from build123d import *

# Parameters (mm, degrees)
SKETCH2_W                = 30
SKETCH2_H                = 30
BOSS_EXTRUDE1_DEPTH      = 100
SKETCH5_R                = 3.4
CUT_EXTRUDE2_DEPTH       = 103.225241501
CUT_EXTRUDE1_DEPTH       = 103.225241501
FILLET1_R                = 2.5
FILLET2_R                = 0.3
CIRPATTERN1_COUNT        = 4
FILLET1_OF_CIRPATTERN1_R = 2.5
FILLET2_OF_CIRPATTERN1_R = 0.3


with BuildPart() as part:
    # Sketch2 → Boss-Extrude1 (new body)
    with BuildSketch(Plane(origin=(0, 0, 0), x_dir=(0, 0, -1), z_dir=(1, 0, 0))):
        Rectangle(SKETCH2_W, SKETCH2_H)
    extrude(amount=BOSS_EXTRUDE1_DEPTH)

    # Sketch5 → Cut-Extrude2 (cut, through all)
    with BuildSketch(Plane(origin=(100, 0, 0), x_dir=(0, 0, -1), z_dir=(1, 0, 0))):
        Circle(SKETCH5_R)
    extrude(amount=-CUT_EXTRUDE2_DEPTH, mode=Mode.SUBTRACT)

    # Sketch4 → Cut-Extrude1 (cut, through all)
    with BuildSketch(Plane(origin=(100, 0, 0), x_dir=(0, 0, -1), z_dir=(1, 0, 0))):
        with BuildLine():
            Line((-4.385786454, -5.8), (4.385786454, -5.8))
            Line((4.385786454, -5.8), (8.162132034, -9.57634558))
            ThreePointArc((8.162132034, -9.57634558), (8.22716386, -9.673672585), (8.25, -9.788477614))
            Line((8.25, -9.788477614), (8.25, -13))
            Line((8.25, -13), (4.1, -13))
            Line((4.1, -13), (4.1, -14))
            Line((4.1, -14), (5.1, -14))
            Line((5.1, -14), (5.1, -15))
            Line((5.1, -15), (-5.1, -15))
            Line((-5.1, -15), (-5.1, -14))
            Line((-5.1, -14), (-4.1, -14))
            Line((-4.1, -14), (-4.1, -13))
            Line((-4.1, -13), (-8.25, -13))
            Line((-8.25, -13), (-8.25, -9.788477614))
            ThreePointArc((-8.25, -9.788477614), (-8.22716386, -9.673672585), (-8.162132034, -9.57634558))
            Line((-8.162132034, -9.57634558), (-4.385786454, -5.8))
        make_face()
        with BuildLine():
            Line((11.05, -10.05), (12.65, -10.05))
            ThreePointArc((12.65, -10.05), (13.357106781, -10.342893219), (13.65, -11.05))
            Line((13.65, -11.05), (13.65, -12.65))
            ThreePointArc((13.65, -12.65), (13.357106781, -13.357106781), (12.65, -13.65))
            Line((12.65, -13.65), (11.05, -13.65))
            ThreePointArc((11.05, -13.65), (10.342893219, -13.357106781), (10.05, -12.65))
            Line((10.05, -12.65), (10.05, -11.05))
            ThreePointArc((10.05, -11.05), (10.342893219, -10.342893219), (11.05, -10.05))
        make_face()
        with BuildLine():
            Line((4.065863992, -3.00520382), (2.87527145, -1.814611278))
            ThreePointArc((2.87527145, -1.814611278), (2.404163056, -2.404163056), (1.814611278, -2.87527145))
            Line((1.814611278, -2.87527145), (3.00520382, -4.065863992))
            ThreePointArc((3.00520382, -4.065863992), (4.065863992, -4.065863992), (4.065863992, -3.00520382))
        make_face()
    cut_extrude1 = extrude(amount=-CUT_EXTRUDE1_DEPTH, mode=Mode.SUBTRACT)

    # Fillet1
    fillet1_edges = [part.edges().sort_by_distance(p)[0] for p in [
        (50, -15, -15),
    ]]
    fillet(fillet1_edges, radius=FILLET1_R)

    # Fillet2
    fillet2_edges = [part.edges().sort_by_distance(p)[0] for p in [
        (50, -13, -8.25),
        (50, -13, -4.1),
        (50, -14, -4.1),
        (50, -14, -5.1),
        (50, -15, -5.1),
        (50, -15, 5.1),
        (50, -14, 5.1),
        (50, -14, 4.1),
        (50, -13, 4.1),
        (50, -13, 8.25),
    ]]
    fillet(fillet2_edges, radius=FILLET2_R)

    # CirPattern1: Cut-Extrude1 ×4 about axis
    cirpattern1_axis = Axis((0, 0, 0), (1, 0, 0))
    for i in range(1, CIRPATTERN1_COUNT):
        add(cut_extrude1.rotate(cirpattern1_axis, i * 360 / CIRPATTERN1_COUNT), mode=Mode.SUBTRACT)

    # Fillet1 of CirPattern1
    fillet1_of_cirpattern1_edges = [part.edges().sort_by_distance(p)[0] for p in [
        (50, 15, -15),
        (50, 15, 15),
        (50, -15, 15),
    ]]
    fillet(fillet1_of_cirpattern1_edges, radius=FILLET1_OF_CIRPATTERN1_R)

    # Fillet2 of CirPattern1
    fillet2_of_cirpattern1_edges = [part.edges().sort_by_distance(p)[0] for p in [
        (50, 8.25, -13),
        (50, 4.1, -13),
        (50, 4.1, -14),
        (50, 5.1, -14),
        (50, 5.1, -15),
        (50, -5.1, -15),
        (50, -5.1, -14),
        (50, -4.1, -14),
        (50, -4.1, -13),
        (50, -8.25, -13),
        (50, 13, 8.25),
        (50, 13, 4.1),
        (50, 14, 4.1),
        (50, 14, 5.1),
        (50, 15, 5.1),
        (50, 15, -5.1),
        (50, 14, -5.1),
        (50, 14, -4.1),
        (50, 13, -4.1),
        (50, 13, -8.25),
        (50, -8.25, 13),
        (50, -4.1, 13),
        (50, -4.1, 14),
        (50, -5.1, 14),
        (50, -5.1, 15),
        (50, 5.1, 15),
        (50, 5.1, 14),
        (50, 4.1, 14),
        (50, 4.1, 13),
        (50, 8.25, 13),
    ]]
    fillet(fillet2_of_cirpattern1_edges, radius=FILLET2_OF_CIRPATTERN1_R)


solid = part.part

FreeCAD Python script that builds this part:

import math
import FreeCAD as App
import Part
import Sketcher
from FreeCAD import Vector
Q = App.Units.Quantity


def edges_at(feature, points):
    """Names of the edges that pass closest to the given points."""
    edges = feature.Shape.Edges
    near = lambda p: min(range(len(edges)), key=lambda i: edges[i].distToShape(Part.Vertex(*p))[0])
    return sorted({f"Edge{near(p) + 1}" for p in points})

doc = App.newDocument("Part")
params = doc.addObject("Spreadsheet::Sheet", "Params")
for row, (alias, value) in enumerate([
    ("sketch1_width", "30 mm"),
    ("pad1_length", "100 mm"),
    ("sketch2_diameter", "6.8 mm"),
    ("sketch3_radius", "1 mm"),
    ("sketch3_radius2", "0.3 mm"),
    ("sketch3_radius3", "3.4 mm"),
    ("sketch3_width", "1 mm"),
    ("sketch3_radius4", "0.75 mm"),
    ("fillet_radius", "2.5 mm"),
    ("fillet2_radius", "0.3 mm"),
    ("fillet3_radius", "2.5 mm"),
    ("fillet4_radius", "0.3 mm"),
], start=1):
    params.set(f"A{row}", alias)
    params.set(f"B{row}", "=" + value)
    params.setAlias(f"B{row}", alias)

body = doc.addObject("PartDesign::Body", "Body")

sketch1 = body.newObject("Sketcher::SketchObject", "Sketch")
sketch1.AttachmentSupport = (doc.getObject("YZ_Plane"), [""])
sketch1.MapMode = "FlatFace"
sketch1.addGeometry(Part.LineSegment(Vector(15, 15, 0), Vector(-15, 15, 0)), False)
sketch1.addGeometry(Part.LineSegment(Vector(-15, 15, 0), Vector(-15, -15, 0)), False)
sketch1.addGeometry(Part.LineSegment(Vector(-15, -15, 0), Vector(15, -15, 0)), False)
sketch1.addGeometry(Part.LineSegment(Vector(15, -15, 0), Vector(15, 15, 0)), False)
sketch1.addConstraint(Sketcher.Constraint("Coincident", 0, 2, 1, 1))
sketch1.addConstraint(Sketcher.Constraint("Coincident", 1, 2, 2, 1))
sketch1.addConstraint(Sketcher.Constraint("Coincident", 2, 2, 3, 1))
sketch1.addConstraint(Sketcher.Constraint("Coincident", 3, 2, 0, 1))
sketch1.addConstraint(Sketcher.Constraint("Horizontal", 0))
sketch1.addConstraint(Sketcher.Constraint("Vertical", 1))
sketch1.addConstraint(Sketcher.Constraint("Horizontal", 2))
sketch1.addConstraint(Sketcher.Constraint("Vertical", 3))
sketch1.addConstraint(Sketcher.Constraint("Symmetric", 0, 2, 2, 2, -1, 1))
sketch1.addConstraint(Sketcher.Constraint("Equal", 2, 1))
sketch1.addConstraint(Sketcher.Constraint("DistanceX", 0, 2, 0, 1, Q("30 mm")))
sketch1.setExpression("Constraints[10]", "Params.sketch1_width")
pad1 = body.newObject("PartDesign::Pad", "Pad")
pad1.Profile = sketch1
pad1.setExpression("Length", "Params.pad1_length")

sketch2 = body.newObject("Sketcher::SketchObject", "Sketch001")
sketch2.AttachmentSupport = (doc.getObject("YZ_Plane"), [""])
sketch2.MapMode = "FlatFace"
sketch2.AttachmentOffset = App.Placement(Vector(0, 0, 100), App.Rotation())
sketch2.addGeometry(Part.Circle(Vector(0, 0, 0), Vector(0, 0, 1), 3.4), False)
sketch2.addConstraint(Sketcher.Constraint("Coincident", 0, 3, -1, 1))
sketch2.addConstraint(Sketcher.Constraint("Diameter", 0, Q("6.8 mm")))
sketch2.setExpression("Constraints[1]", "Params.sketch2_diameter")
pocket1 = body.newObject("PartDesign::Pocket", "Pocket")
pocket1.Profile = sketch2
pocket1.Type = "ThroughAll"

sketch3 = body.newObject("Sketcher::SketchObject", "Sketch002")
sketch3.AttachmentSupport = (doc.getObject("YZ_Plane"), [""])
sketch3.MapMode = "FlatFace"
sketch3.AttachmentOffset = App.Placement(Vector(0, 0, 100), App.Rotation())
sketch3.addGeometry(Part.LineSegment(Vector(-5.8, -4.39, 0), Vector(-5.8, 4.39, 0)), False)
sketch3.addGeometry(Part.LineSegment(Vector(-5.8, 4.39, 0), Vector(-9.58, 8.16, 0)), False)
sketch3.addGeometry(Part.ArcOfCircle(Part.Circle(Vector(-9.79, 7.95, 0), Vector(0, 0, 1), 0.3), math.radians(45), math.radians(90)), False)
sketch3.addGeometry(Part.LineSegment(Vector(-9.79, 8.25, 0), Vector(-13, 8.25, 0)), False)
sketch3.addGeometry(Part.LineSegment(Vector(-13, 8.25, 0), Vector(-13, 4.1, 0)), False)
sketch3.addGeometry(Part.LineSegment(Vector(-13, 4.1, 0), Vector(-14, 4.1, 0)), False)
sketch3.addGeometry(Part.LineSegment(Vector(-14, 4.1, 0), Vector(-14, 5.1, 0)), False)
sketch3.addGeometry(Part.LineSegment(Vector(-14, 5.1, 0), Vector(-15, 5.1, 0)), False)
sketch3.addGeometry(Part.LineSegment(Vector(-15, 5.1, 0), Vector(-15, -5.1, 0)), False)
sketch3.addGeometry(Part.LineSegment(Vector(-15, -5.1, 0), Vector(-14, -5.1, 0)), False)
sketch3.addGeometry(Part.LineSegment(Vector(-14, -5.1, 0), Vector(-14, -4.1, 0)), False)
sketch3.addGeometry(Part.LineSegment(Vector(-14, -4.1, 0), Vector(-13, -4.1, 0)), False)
sketch3.addGeometry(Part.LineSegment(Vector(-13, -4.1, 0), Vector(-13, -8.25, 0)), False)
sketch3.addGeometry(Part.LineSegment(Vector(-13, -8.25, 0), Vector(-9.79, -8.25, 0)), False)
sketch3.addGeometry(Part.ArcOfCircle(Part.Circle(Vector(-9.79, -7.95, 0), Vector(0, 0, 1), 0.3), math.radians(-90), math.radians(-45)), False)
sketch3.addGeometry(Part.LineSegment(Vector(-9.58, -8.16, 0), Vector(-5.8, -4.39, 0)), False)
sketch3.addGeometry(Part.LineSegment(Vector(-10.05, -12.65, 0), Vector(-10.05, -11.05, 0)), False)
sketch3.addGeometry(Part.ArcOfCircle(Part.Circle(Vector(-11.05, -11.05, 0), Vector(0, 0, 1), 1), math.radians(0), math.radians(90)), False)
sketch3.addGeometry(Part.LineSegment(Vector(-11.05, -10.05, 0), Vector(-12.65, -10.05, 0)), False)
sketch3.addGeometry(Part.ArcOfCircle(Part.Circle(Vector(-12.65, -11.05, 0), Vector(0, 0, 1), 1), math.radians(90), math.radians(180)), False)
sketch3.addGeometry(Part.LineSegment(Vector(-13.65, -11.05, 0), Vector(-13.65, -12.65, 0)), False)
sketch3.addGeometry(Part.ArcOfCircle(Part.Circle(Vector(-12.65, -12.65, 0), Vector(0, 0, 1), 1), math.radians(-180), math.radians(-90)), False)
sketch3.addGeometry(Part.LineSegment(Vector(-12.65, -13.65, 0), Vector(-11.05, -13.65, 0)), False)
sketch3.addGeometry(Part.ArcOfCircle(Part.Circle(Vector(-11.05, -12.65, 0), Vector(0, 0, 1), 1), math.radians(-90), math.radians(0)), False)
sketch3.addGeometry(Part.LineSegment(Vector(-3.01, -4.07, 0), Vector(-1.81, -2.88, 0)), False)
sketch3.addGeometry(Part.ArcOfCircle(Part.Circle(Vector(0, 0, 0), Vector(0, 0, 1), 3.4), math.radians(-148), math.radians(-122)), False)
sketch3.addGeometry(Part.LineSegment(Vector(-2.88, -1.81, 0), Vector(-4.07, -3.01, 0)), False)
sketch3.addGeometry(Part.ArcOfCircle(Part.Circle(Vector(-3.54, -3.54, 0), Vector(0, 0, 1), 0.75), math.radians(135), math.radians(315)), False)
sketch3.addConstraint(Sketcher.Constraint("Coincident", 0, 2, 1, 1))
sketch3.addConstraint(Sketcher.Constraint("Tangent", 1, 2, 2, 1))
sketch3.addConstraint(Sketcher.Constraint("Tangent", 2, 2, 3, 1))
sketch3.addConstraint(Sketcher.Constraint("Coincident", 3, 2, 4, 1))
sketch3.addConstraint(Sketcher.Constraint("Coincident", 4, 2, 5, 1))
sketch3.addConstraint(Sketcher.Constraint("Coincident", 5, 2, 6, 1))
sketch3.addConstraint(Sketcher.Constraint("Coincident", 6, 2, 7, 1))
sketch3.addConstraint(Sketcher.Constraint("Coincident", 7, 2, 8, 1))
sketch3.addConstraint(Sketcher.Constraint("Coincident", 8, 2, 9, 1))
sketch3.addConstraint(Sketcher.Constraint("Coincident", 9, 2, 10, 1))
sketch3.addConstraint(Sketcher.Constraint("Coincident", 10, 2, 11, 1))
sketch3.addConstraint(Sketcher.Constraint("Coincident", 11, 2, 12, 1))
sketch3.addConstraint(Sketcher.Constraint("Coincident", 12, 2, 13, 1))
sketch3.addConstraint(Sketcher.Constraint("Tangent", 13, 2, 14, 1))
sketch3.addConstraint(Sketcher.Constraint("Tangent", 14, 2, 15, 1))
sketch3.addConstraint(Sketcher.Constraint("Coincident", 15, 2, 0, 1))
sketch3.addConstraint(Sketcher.Constraint("Tangent", 16, 2, 17, 1))
sketch3.addConstraint(Sketcher.Constraint("Tangent", 17, 2, 18, 1))
sketch3.addConstraint(Sketcher.Constraint("Tangent", 18, 2, 19, 1))
sketch3.addConstraint(Sketcher.Constraint("Tangent", 19, 2, 20, 1))
sketch3.addConstraint(Sketcher.Constraint("Tangent", 20, 2, 21, 1))
sketch3.addConstraint(Sketcher.Constraint("Tangent", 21, 2, 22, 1))
sketch3.addConstraint(Sketcher.Constraint("Tangent", 22, 2, 23, 1))
sketch3.addConstraint(Sketcher.Constraint("Tangent", 23, 2, 16, 1))
sketch3.addConstraint(Sketcher.Constraint("Coincident", 24, 2, 25, 2))
sketch3.addConstraint(Sketcher.Constraint("Coincident", 25, 1, 26, 1))
sketch3.addConstraint(Sketcher.Constraint("Tangent", 26, 2, 27, 1))
sketch3.addConstraint(Sketcher.Constraint("Tangent", 27, 2, 24, 1))
sketch3.addConstraint(Sketcher.Constraint("Vertical", 0))
sketch3.addConstraint(Sketcher.Constraint("Horizontal", 3))
sketch3.addConstraint(Sketcher.Constraint("Vertical", 4))
sketch3.addConstraint(Sketcher.Constraint("Horizontal", 5))
sketch3.addConstraint(Sketcher.Constraint("Vertical", 6))
sketch3.addConstraint(Sketcher.Constraint("Horizontal", 7))
sketch3.addConstraint(Sketcher.Constraint("Vertical", 8))
sketch3.addConstraint(Sketcher.Constraint("Horizontal", 9))
sketch3.addConstraint(Sketcher.Constraint("Vertical", 10))
sketch3.addConstraint(Sketcher.Constraint("Horizontal", 11))
sketch3.addConstraint(Sketcher.Constraint("Vertical", 12))
sketch3.addConstraint(Sketcher.Constraint("Horizontal", 13))
sketch3.addConstraint(Sketcher.Constraint("Vertical", 16))
sketch3.addConstraint(Sketcher.Constraint("Horizontal", 18))
sketch3.addConstraint(Sketcher.Constraint("Vertical", 20))
sketch3.addConstraint(Sketcher.Constraint("Horizontal", 22))
sketch3.addConstraint(Sketcher.Constraint("Coincident", 25, 3, -1, 1))
sketch3.addConstraint(Sketcher.Constraint("Equal", 2, 14))
sketch3.addConstraint(Sketcher.Constraint("Equal", 17, 19))
sketch3.addConstraint(Sketcher.Constraint("Equal", 19, 21))
sketch3.addConstraint(Sketcher.Constraint("Equal", 21, 23))
sketch3.addConstraint(Sketcher.Constraint("Symmetric", 2, 3, 14, 3, -1))
sketch3.addConstraint(Sketcher.Constraint("Symmetric", 6, 2, 9, 2, -1))
sketch3.addConstraint(Sketcher.Constraint("Symmetric", 4, 2, 11, 2, -1))
sketch3.addConstraint(Sketcher.Constraint("Perpendicular", 1, 15))
sketch3.addConstraint(Sketcher.Constraint("Parallel", 15, 24))
sketch3.addConstraint(Sketcher.Constraint("Parallel", 24, 26))
sketch3.addConstraint(Sketcher.Constraint("Vertical", 1, 2, 14, 2))
sketch3.addConstraint(Sketcher.Constraint("Equal", 5, 7))
sketch3.addConstraint(Sketcher.Constraint("Equal", 11, 6))
sketch3.addConstraint(Sketcher.Constraint("Equal", 22, 16))
sketch3.addConstraint(Sketcher.Constraint("Equal", 24, 26))
sketch3.addConstraint(Sketcher.Constraint("Radius", 17, Q("1 mm")))
sketch3.addConstraint(Sketcher.Constraint("Radius", 2, Q("0.3 mm")))
sketch3.addConstraint(Sketcher.Constraint("Radius", 25, Q("3.4 mm")))
sketch3.addConstraint(Sketcher.Constraint("DistanceX", 5, 2, 5, 1, Q("1 mm")))
sketch3.addConstraint(Sketcher.Constraint("Radius", 27, Q("0.75 mm")))
sketch3.addConstraint(Sketcher.Constraint("DistanceX", 18, 2, 18, 1, Q("1.6 mm")))
sketch3.addConstraint(Sketcher.Constraint("DistanceY", 8, 2, 8, 1, Q("10.2 mm")))
sketch3.addConstraint(Sketcher.Constraint("DistanceX", 3, 2, -1, 1, Q("13 mm")))
sketch3.addConstraint(Sketcher.Constraint("DistanceY", 17, 3, 2, 3, Q("19 mm")))
sketch3.addConstraint(Sketcher.Constraint("DistanceY", 4, 2, 4, 1, Q("4.15 mm")))
sketch3.addConstraint(Sketcher.Constraint("DistanceX", 0, 2, -1, 1, Q("5.8 mm")))
sketch3.addConstraint(Sketcher.Constraint("DistanceX", 17, 3, -1, 1, Q("11.05 mm")))
sketch3.addConstraint(Sketcher.Constraint("Distance", 1, Q("5.340559 mm")))
sketch3.addConstraint(Sketcher.Constraint("DistanceY", 27, 3, 0, 2, Q("7.92132 mm")))
sketch3.setExpression("Constraints[60]", "Params.sketch3_radius")
sketch3.setExpression("Constraints[61]", "Params.sketch3_radius2")
sketch3.setExpression("Constraints[62]", "Params.sketch3_radius3")
sketch3.setExpression("Constraints[63]", "Params.sketch3_width")
sketch3.setExpression("Constraints[64]", "Params.sketch3_radius4")
pocket2 = body.newObject("PartDesign::Pocket", "Pocket001")
pocket2.Profile = sketch3
pocket2.Type = "ThroughAll"
doc.recompute()

fillet = body.newObject("PartDesign::Fillet", "Fillet")
fillet.Base = (pocket2, edges_at(pocket2, [(50, -15, -15)]))
fillet.setExpression("Radius", "Params.fillet_radius")
doc.recompute()

fillet2 = body.newObject("PartDesign::Fillet", "Fillet001")
fillet2.Base = (fillet, edges_at(fillet, [
    (50, -13, -8.25),
    (50, -13, -4.1),
    (50, -14, -4.1),
    (50, -14, -5.1),
    (50, -15, -5.1),
    (50, -15, 5.1),
    (50, -14, 5.1),
    (50, -14, 4.1),
    (50, -13, 4.1),
    (50, -13, 8.25),
]))
fillet2.setExpression("Radius", "Params.fillet2_radius")
doc.recompute()

polarpattern = body.newObject("PartDesign::PolarPattern", "PolarPattern")
polarpattern.Originals = [pocket2]
polarpattern.Axis = (doc.getObject("X_Axis"), [""])
polarpattern.Angle = 360
polarpattern.Occurrences = 4
body.Tip = polarpattern
doc.recompute()

fillet3 = body.newObject("PartDesign::Fillet", "Fillet002")
fillet3.Base = (polarpattern, edges_at(polarpattern, [(50, 15, -15), (50, 15, 15), (50, -15, 15)]))
fillet3.setExpression("Radius", "Params.fillet3_radius")
doc.recompute()

fillet4 = body.newObject("PartDesign::Fillet", "Fillet003")
fillet4.Base = (fillet3, edges_at(fillet3, [
    (50, 8.25, -13),
    (50, 4.1, -13),
    (50, 4.1, -14),
    (50, 5.1, -14),
    (50, 5.1, -15),
    (50, -5.1, -15),
    (50, -5.1, -14),
    (50, -4.1, -14),
    (50, -4.1, -13),
    (50, -8.25, -13),
    (50, 13, 8.25),
    (50, 13, 4.1),
    (50, 14, 4.1),
    (50, 14, 5.1),
    (50, 15, 5.1),
    (50, 15, -5.1),
    (50, 14, -5.1),
    (50, 14, -4.1),
    (50, 13, -4.1),
    (50, 13, -8.25),
    (50, -8.25, 13),
    (50, -4.1, 13),
    (50, -4.1, 14),
    (50, -5.1, 14),
    (50, -5.1, 15),
    (50, 5.1, 15),
    (50, 5.1, 14),
    (50, 4.1, 14),
    (50, 4.1, 13),
    (50, 8.25, 13),
]))
fillet4.setExpression("Radius", "Params.fillet4_radius")

doc.recompute()
